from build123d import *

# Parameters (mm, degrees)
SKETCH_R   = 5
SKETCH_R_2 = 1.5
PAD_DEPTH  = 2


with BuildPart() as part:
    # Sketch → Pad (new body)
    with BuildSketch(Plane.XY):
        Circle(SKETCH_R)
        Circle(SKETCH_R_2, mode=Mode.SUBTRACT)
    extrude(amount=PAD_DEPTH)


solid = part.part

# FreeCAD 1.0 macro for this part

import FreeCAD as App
import Part
import Sketcher

V = App.Vector
Q = App.Units.Quantity

doc = App.newDocument("Part")
body = doc.addObject("PartDesign::Body", "Body")

sketch1 = doc.addObject("Sketcher::SketchObject", "Sketch")
body.addObject(sketch1)
sketch1.AttachmentSupport = (doc.XY_Plane, [""])
sketch1.MapMode = "FlatFace"
sketch1.addGeometry([
    Part.Circle(V(0, 0, 0), V(0, 0, 1), 5),
    Part.Circle(V(0, 0, 0), V(0, 0, 1), 1.5),
], False)
sketch1.addConstraint([
    Sketcher.Constraint("Coincident", 0, 3, -1, 1),
    Sketcher.Constraint("Coincident", 1, 3, -1, 1),
    Sketcher.Constraint("Diameter", 0, Q("10 mm")),
    Sketcher.Constraint("Diameter", 1, Q("3 mm")),
])
pad1 = doc.addObject("PartDesign::Pad", "Pad")
body.addObject(pad1)
pad1.Profile = sketch1
pad1.Length = 2

doc.recompute()
